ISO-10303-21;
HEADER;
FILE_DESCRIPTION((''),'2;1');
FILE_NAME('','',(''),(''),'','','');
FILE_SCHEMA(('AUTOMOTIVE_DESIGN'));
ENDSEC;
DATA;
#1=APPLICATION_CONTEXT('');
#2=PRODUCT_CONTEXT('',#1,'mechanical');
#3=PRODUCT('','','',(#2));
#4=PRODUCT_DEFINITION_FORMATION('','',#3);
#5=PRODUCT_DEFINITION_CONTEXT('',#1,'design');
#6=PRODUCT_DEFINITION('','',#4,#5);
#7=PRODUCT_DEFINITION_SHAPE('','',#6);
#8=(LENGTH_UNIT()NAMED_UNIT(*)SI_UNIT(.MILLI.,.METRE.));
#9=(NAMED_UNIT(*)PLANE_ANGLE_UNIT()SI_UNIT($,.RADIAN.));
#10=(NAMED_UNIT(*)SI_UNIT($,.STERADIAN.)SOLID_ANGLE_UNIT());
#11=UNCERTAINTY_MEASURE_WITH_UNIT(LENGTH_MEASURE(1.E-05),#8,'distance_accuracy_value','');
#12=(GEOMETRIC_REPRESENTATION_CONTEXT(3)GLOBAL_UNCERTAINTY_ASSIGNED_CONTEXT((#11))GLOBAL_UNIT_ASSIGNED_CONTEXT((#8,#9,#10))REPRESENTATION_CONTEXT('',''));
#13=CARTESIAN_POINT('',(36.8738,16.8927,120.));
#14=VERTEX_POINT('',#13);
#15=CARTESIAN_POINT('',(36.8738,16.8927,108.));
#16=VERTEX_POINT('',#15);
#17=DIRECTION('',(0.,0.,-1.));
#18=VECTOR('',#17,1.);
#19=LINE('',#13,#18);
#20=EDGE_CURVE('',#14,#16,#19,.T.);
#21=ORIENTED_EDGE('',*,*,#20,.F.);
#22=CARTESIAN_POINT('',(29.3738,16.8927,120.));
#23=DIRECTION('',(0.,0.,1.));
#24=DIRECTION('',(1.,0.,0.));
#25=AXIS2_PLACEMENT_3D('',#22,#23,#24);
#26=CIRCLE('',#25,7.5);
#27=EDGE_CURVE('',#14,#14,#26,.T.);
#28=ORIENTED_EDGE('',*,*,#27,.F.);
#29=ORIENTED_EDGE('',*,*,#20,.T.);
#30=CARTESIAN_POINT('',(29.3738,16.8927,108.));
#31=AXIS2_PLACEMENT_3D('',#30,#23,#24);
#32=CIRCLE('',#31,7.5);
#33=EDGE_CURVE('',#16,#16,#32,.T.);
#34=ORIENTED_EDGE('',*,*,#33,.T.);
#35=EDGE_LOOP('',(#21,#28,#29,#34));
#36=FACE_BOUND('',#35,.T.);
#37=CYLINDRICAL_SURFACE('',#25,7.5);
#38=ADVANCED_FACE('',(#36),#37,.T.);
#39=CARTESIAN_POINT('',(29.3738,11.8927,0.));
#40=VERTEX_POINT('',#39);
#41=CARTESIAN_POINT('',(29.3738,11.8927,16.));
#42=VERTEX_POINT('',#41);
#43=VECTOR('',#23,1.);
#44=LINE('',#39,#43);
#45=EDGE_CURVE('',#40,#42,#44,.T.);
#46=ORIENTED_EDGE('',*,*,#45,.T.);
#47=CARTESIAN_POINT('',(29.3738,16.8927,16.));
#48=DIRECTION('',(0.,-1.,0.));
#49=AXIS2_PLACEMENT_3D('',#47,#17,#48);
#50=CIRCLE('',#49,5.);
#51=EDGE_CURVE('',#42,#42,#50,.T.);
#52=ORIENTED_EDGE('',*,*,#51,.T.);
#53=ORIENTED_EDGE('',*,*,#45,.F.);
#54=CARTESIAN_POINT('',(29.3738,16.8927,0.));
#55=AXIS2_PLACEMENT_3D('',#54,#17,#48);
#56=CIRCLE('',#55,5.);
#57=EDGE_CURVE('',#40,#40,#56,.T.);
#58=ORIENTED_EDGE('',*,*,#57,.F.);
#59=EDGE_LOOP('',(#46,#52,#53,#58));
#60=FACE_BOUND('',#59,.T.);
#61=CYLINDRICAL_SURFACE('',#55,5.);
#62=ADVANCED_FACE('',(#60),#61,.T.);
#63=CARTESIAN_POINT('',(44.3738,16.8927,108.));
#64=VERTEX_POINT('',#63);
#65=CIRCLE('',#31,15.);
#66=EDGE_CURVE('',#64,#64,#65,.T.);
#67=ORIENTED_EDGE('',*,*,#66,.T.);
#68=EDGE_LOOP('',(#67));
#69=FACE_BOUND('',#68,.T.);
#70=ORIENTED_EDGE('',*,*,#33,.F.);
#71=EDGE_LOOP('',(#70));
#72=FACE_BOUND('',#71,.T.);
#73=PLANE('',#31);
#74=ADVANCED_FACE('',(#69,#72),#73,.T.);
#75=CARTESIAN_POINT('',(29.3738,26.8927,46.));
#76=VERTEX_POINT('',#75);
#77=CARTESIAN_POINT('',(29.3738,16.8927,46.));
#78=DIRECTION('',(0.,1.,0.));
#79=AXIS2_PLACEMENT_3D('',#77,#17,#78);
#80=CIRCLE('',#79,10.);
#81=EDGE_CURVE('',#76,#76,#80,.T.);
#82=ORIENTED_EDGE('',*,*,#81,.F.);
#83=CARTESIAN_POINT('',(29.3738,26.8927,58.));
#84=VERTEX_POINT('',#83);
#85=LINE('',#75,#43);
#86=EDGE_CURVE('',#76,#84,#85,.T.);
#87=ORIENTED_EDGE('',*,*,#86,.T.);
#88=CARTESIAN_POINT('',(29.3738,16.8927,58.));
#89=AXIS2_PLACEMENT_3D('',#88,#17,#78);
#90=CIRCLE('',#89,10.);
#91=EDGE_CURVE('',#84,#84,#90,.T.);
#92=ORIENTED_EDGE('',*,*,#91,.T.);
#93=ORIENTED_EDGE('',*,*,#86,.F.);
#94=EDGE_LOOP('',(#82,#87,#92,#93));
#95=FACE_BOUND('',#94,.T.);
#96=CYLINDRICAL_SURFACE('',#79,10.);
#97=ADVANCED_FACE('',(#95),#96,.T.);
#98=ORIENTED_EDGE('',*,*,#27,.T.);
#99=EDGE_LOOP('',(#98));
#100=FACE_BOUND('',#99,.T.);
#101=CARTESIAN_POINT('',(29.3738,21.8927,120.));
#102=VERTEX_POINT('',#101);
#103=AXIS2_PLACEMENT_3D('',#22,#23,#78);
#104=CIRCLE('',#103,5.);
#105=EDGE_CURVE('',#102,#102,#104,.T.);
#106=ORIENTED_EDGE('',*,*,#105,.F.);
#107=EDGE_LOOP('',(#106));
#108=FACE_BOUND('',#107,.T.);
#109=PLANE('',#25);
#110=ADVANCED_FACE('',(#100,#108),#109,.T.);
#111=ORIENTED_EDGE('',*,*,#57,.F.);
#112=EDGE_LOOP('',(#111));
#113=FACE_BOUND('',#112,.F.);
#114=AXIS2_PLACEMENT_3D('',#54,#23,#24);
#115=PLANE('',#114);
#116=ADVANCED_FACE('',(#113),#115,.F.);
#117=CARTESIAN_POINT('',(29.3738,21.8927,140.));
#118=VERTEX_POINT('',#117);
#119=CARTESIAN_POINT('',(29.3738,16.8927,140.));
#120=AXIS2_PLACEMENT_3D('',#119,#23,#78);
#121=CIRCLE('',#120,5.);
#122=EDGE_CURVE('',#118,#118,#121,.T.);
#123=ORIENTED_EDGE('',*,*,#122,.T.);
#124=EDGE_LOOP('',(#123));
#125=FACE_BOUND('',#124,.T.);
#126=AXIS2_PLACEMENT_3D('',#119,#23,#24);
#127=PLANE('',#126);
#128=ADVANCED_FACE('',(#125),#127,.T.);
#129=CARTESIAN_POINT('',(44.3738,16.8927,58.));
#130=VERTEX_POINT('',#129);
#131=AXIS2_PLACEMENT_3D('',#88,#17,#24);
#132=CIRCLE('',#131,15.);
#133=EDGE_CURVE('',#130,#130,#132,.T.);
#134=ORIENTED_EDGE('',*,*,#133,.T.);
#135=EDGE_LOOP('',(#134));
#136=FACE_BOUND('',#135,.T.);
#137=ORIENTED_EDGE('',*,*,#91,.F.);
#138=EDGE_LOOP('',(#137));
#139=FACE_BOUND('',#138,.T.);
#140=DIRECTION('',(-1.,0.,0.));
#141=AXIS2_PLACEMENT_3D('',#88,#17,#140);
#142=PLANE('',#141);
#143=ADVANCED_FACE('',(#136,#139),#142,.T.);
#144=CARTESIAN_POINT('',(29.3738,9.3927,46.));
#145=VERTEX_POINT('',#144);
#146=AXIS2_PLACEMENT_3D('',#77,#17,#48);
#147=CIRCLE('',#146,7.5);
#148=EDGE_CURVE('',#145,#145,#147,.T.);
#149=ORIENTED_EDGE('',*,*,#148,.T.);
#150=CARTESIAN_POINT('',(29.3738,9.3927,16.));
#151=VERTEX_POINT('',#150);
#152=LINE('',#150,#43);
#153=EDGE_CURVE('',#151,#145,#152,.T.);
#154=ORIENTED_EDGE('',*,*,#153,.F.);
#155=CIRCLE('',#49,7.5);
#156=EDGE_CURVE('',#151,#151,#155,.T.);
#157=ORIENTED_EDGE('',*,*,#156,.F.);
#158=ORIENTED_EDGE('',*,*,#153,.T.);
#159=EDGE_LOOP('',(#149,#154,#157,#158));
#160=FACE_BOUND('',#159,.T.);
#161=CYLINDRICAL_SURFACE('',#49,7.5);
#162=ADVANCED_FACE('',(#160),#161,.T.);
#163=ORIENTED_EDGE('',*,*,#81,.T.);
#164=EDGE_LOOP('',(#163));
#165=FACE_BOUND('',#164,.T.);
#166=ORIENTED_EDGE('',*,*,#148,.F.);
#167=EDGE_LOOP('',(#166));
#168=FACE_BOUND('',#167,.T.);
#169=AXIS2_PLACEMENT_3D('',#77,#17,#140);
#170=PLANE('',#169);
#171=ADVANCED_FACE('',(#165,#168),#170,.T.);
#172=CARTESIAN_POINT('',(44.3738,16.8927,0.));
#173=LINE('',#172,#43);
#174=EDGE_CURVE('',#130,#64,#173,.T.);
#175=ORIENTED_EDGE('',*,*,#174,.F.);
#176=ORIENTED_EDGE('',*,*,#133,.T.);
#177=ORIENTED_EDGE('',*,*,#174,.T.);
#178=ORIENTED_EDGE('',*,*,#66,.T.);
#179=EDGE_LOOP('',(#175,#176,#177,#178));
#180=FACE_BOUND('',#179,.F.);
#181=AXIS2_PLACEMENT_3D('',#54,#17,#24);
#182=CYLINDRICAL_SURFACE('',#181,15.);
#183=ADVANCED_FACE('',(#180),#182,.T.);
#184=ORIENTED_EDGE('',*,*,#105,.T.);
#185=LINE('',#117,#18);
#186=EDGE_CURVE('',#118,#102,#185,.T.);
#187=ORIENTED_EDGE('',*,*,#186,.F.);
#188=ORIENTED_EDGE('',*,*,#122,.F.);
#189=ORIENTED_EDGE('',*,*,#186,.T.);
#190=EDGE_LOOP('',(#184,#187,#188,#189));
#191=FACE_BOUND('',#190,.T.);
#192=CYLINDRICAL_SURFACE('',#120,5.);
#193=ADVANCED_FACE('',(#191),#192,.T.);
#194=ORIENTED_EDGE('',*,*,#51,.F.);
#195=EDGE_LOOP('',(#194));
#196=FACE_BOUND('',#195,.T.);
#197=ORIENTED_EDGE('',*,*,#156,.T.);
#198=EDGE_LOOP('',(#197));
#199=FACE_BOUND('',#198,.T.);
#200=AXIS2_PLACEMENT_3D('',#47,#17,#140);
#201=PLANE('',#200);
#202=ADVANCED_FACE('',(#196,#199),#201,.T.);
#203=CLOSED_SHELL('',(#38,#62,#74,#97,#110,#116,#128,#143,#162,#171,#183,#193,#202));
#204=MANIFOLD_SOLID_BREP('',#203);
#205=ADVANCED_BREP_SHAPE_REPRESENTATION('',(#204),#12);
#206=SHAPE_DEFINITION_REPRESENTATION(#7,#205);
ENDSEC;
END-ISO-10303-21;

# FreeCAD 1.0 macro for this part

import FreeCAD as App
import Part
import Sketcher
from FreeCAD import Vector

doc = App.newDocument("Part")
body = doc.addObject("PartDesign::Body", "Body")

sketch1 = body.newObject("Sketcher::SketchObject", "Sketch")
sketch1.AttachmentSupport = (doc.getObject("XY_Plane"), [""])
sketch1.MapMode = "FlatFace"
sketch1.addGeometry(Part.Circle(Vector(29.3738, 16.8927, 0), Vector(0, 0, 1), 15), False)
sketch1.addConstraint([
    Sketcher.Constraint("Diameter", 0, 30.0),
    Sketcher.Constraint("DistanceX", -1, 1, 0, 3, 29.3738),
    Sketcher.Constraint("DistanceY", -1, 1, 0, 3, 16.8927),
])
pad1 = body.newObject("PartDesign::Pad", "Pad")
pad1.Profile = sketch1
pad1.Length = 140

sketch2 = body.newObject("Sketcher::SketchObject", "Sketch001")
sketch2.AttachmentSupport = (doc.getObject("XY_Plane"), [""])
sketch2.MapMode = "FlatFace"
sketch2.AttachmentOffset = App.Placement(Vector(0, 0, 140), App.Rotation())
sketch2.addGeometry([
    Part.Circle(Vector(29.3738, 16.8927, 0), Vector(0, 0, 1), 15),
    Part.Circle(Vector(29.3738, 16.8927, 0), Vector(0, 0, 1), 12.5),
], False)
sketch2.addConstraint([
    Sketcher.Constraint("Coincident", 1, 3, 0, 3),
    Sketcher.Constraint("Diameter", 0, 30.0),
    Sketcher.Constraint("Diameter", 1, 25.0),
    Sketcher.Constraint("DistanceX", -1, 1, 0, 3, 29.3738),
    Sketcher.Constraint("DistanceY", -1, 1, 0, 3, 16.8927),
])
pocket1 = body.newObject("PartDesign::Pocket", "Pocket")
pocket1.Profile = sketch2
pocket1.Length = 32

sketch3 = body.newObject("Sketcher::SketchObject", "Sketch002")
sketch3.AttachmentSupport = (doc.getObject("XY_Plane"), [""])
sketch3.MapMode = "FlatFace"
sketch3.AttachmentOffset = App.Placement(Vector(0, 0, 140), App.Rotation())
sketch3.addGeometry([
    Part.Circle(Vector(29.3738, 16.8927, 0), Vector(0, 0, 1), 12.5),
    Part.Circle(Vector(29.3738, 16.8927, 0), Vector(0, 0, 1), 10),
], False)
sketch3.addConstraint([
    Sketcher.Constraint("Coincident", 1, 3, 0, 3),
    Sketcher.Constraint("Diameter", 0, 25.0),
    Sketcher.Constraint("Diameter", 1, 20.0),
    Sketcher.Constraint("DistanceX", -1, 1, 0, 3, 29.3738),
    Sketcher.Constraint("DistanceY", -1, 1, 0, 3, 16.8927),
])
pocket2 = body.newObject("PartDesign::Pocket", "Pocket001")
pocket2.Profile = sketch3
pocket2.Length = 20

sketch4 = body.newObject("Sketcher::SketchObject", "Sketch003")
sketch4.AttachmentSupport = (doc.getObject("XY_Plane"), [""])
sketch4.MapMode = "FlatFace"
sketch4.addGeometry([
    Part.Circle(Vector(29.3738, 16.8927, 0), Vector(0, 0, 1), 15),
    Part.Circle(Vector(29.3738, 16.8927, 0), Vector(0, 0, 1), 12.5),
], False)
sketch4.addConstraint([
    Sketcher.Constraint("Coincident", 1, 3, 0, 3),
    Sketcher.Constraint("Diameter", 0, 30.0),
    Sketcher.Constraint("Diameter", 1, 25.0),
    Sketcher.Constraint("DistanceX", -1, 1, 0, 3, 29.3738),
    Sketcher.Constraint("DistanceY", -1, 1, 0, 3, 16.8927),
])
pocket3 = body.newObject("PartDesign::Pocket", "Pocket002")
pocket3.Profile = sketch4
pocket3.Length = 58
pocket3.Reversed = True

sketch5 = body.newObject("Sketcher::SketchObject", "Sketch004")
sketch5.AttachmentSupport = (doc.getObject("XY_Plane"), [""])
sketch5.MapMode = "FlatFace"
sketch5.addGeometry([
    Part.Circle(Vector(29.3738, 16.8927, 0), Vector(0, 0, 1), 12.5),
    Part.Circle(Vector(29.3738, 16.8927, 0), Vector(0, 0, 1), 10),
], False)
sketch5.addConstraint([
    Sketcher.Constraint("Coincident", 1, 3, 0, 3),
    Sketcher.Constraint("Diameter", 0, 25.0),
    Sketcher.Constraint("Diameter", 1, 20.0),
    Sketcher.Constraint("DistanceX", -1, 1, 0, 3, 29.3738),
    Sketcher.Constraint("DistanceY", -1, 1, 0, 3, 16.8927),
])
pocket4 = body.newObject("PartDesign::Pocket", "Pocket003")
pocket4.Profile = sketch5
pocket4.Length = 46
pocket4.Reversed = True

sketch6 = body.newObject("Sketcher::SketchObject", "Sketch005")
sketch6.AttachmentSupport = (doc.getObject("XY_Plane"), [""])
sketch6.MapMode = "FlatFace"
sketch6.addGeometry([
    Part.Circle(Vector(29.3738, 16.8927, 0), Vector(0, 0, 1), 10),
    Part.Circle(Vector(29.3738, 16.8927, 0), Vector(0, 0, 1), 7.5),
], False)
sketch6.addConstraint([
    Sketcher.Constraint("Coincident", 1, 3, 0, 3),
    Sketcher.Constraint("Diameter", 0, 20.0),
    Sketcher.Constraint("Diameter", 1, 15.0),
    Sketcher.Constraint("DistanceX", -1, 1, 0, 3, 29.3738),
    Sketcher.Constraint("DistanceY", -1, 1, 0, 3, 16.8927),
])
pocket5 = body.newObject("PartDesign::Pocket", "Pocket004")
pocket5.Profile = sketch6
pocket5.Length = 16
pocket5.Reversed = True

sketch7 = body.newObject("Sketcher::SketchObject", "Sketch006")
sketch7.AttachmentSupport = (doc.getObject("XY_Plane"), [""])
sketch7.MapMode = "FlatFace"
sketch7.AttachmentOffset = App.Placement(Vector(0, 0, 140), App.Rotation())
sketch7.addGeometry([
    Part.Circle(Vector(29.3738, 16.8927, 0), Vector(0, 0, 1), 10),
    Part.Circle(Vector(29.3738, 16.8927, 0), Vector(0, 0, 1), 5),
], False)
sketch7.addConstraint([
    Sketcher.Constraint("Coincident", 1, 3, 0, 3),
    Sketcher.Constraint("Diameter", 0, 20.0),
    Sketcher.Constraint("Diameter", 1, 10.0),
    Sketcher.Constraint("DistanceX", -1, 1, 0, 3, 29.3738),
    Sketcher.Constraint("DistanceY", -1, 1, 0, 3, 16.8927),
])
pocket6 = body.newObject("PartDesign::Pocket", "Pocket005")
pocket6.Profile = sketch7
pocket6.Length = 20

sketch8 = body.newObject("Sketcher::SketchObject", "Sketch007")
sketch8.AttachmentSupport = (doc.getObject("XY_Plane"), [""])
sketch8.MapMode = "FlatFace"
sketch8.AttachmentOffset = App.Placement(Vector(0, 0, 120), App.Rotation())
sketch8.addGeometry([
    Part.Circle(Vector(29.3738, 16.8927, 0), Vector(0, 0, 1), 12.5),
    Part.Circle(Vector(29.3738, 16.8927, 0), Vector(0, 0, 1), 7.5),
], False)
sketch8.addConstraint([
    Sketcher.Constraint("Coincident", 1, 3, 0, 3),
    Sketcher.Constraint("Diameter", 0, 25.0),
    Sketcher.Constraint("Diameter", 1, 15.0),
    Sketcher.Constraint("DistanceX", -1, 1, 0, 3, 29.3738),
    Sketcher.Constraint("DistanceY", -1, 1, 0, 3, 16.8927),
])
pocket7 = body.newObject("PartDesign::Pocket", "Pocket006")
pocket7.Profile = sketch8
pocket7.Length = 12

sketch9 = body.newObject("Sketcher::SketchObject", "Sketch008")
sketch9.AttachmentSupport = (doc.getObject("XY_Plane"), [""])
sketch9.MapMode = "FlatFace"
sketch9.addGeometry([
    Part.Circle(Vector(29.3738, 16.8927, 0), Vector(0, 0, 1), 7.5),
    Part.Circle(Vector(29.3738, 16.8927, 0), Vector(0, 0, 1), 5),
], False)
sketch9.addConstraint([
    Sketcher.Constraint("Coincident", 1, 3, 0, 3),
    Sketcher.Constraint("Diameter", 0, 15.0),
    Sketcher.Constraint("Diameter", 1, 10.0),
    Sketcher.Constraint("DistanceX", -1, 1, 0, 3, 29.3738),
    Sketcher.Constraint("DistanceY", -1, 1, 0, 3, 16.8927),
])
pocket8 = body.newObject("PartDesign::Pocket", "Pocket007")
pocket8.Profile = sketch9
pocket8.Length = 16
pocket8.Reversed = True

sketch10 = body.newObject("Sketcher::SketchObject", "Sketch009")
sketch10.AttachmentSupport = (doc.getObject("XY_Plane"), [""])
sketch10.MapMode = "FlatFace"
sketch10.AttachmentOffset = App.Placement(Vector(0, 0, 16), App.Rotation())
sketch10.addGeometry([
    Part.Circle(Vector(29.3738, 16.8927, 0), Vector(0, 0, 1), 10),
    Part.Circle(Vector(29.3738, 16.8927, 0), Vector(0, 0, 1), 7.5),
], False)
sketch10.addConstraint([
    Sketcher.Constraint("Coincident", 1, 3, 0, 3),
    Sketcher.Constraint("Diameter", 0, 20.0),
    Sketcher.Constraint("Diameter", 1, 15.0),
    Sketcher.Constraint("DistanceX", -1, 1, 0, 3, 29.3738),
    Sketcher.Constraint("DistanceY", -1, 1, 0, 3, 16.8927),
])
pocket9 = body.newObject("PartDesign::Pocket", "Pocket008")
pocket9.Profile = sketch10
pocket9.Length = 30
pocket9.Reversed = True

sketch11 = body.newObject("Sketcher::SketchObject", "Sketch010")
sketch11.AttachmentSupport = (doc.getObject("XY_Plane"), [""])
sketch11.MapMode = "FlatFace"
sketch11.AttachmentOffset = App.Placement(Vector(0, 0, 46), App.Rotation())
sketch11.addGeometry([
    Part.Circle(Vector(29.3738, 16.8927, 0), Vector(0, 0, 1), 12.5),
    Part.Circle(Vector(29.3738, 16.8927, 0), Vector(0, 0, 1), 10),
], False)
sketch11.addConstraint([
    Sketcher.Constraint("Coincident", 1, 3, 0, 3),
    Sketcher.Constraint("Diameter", 0, 25.0),
    Sketcher.Constraint("Diameter", 1, 20.0),
    Sketcher.Constraint("DistanceX", -1, 1, 0, 3, 29.3738),
    Sketcher.Constraint("DistanceY", -1, 1, 0, 3, 16.8927),
])
pocket10 = body.newObject("PartDesign::Pocket", "Pocket009")
pocket10.Profile = sketch11
pocket10.Length = 12
pocket10.Reversed = True

doc.recompute()
